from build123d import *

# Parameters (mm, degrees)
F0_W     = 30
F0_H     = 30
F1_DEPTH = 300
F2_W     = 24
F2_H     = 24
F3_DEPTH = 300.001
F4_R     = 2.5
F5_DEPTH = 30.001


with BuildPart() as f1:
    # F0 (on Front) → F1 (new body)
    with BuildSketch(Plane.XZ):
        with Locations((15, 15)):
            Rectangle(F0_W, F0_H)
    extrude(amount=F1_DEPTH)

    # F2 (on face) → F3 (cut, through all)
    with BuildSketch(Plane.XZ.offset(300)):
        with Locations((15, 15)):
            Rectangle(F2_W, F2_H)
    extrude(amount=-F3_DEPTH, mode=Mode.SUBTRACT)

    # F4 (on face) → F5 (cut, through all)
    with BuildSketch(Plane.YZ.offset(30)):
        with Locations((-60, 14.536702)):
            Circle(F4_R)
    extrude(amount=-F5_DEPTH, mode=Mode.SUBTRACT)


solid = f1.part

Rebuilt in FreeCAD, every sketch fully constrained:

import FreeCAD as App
import Part
import Sketcher

doc = App.newDocument("Part")
body = doc.addObject("PartDesign::Body", "Body")

sketch1 = body.newObject("Sketcher::SketchObject", "Sketch")
sketch1.AttachmentSupport = (doc.getObject("XZ_Plane"), [""])
sketch1.MapMode = "FlatFace"
sketch1.addGeometry(Part.LineSegment(App.Vector(0, 30, 0), App.Vector(0, 0, 0)), False)
sketch1.addGeometry(Part.LineSegment(App.Vector(0, 0, 0), App.Vector(30, 0, 0)), False)
sketch1.addGeometry(Part.LineSegment(App.Vector(30, 0, 0), App.Vector(30, 30, 0)), False)
sketch1.addGeometry(Part.LineSegment(App.Vector(30, 30, 0), App.Vector(0, 30, 0)), False)
sketch1.addConstraint(Sketcher.Constraint("Coincident", 0, 2, 1, 1))
sketch1.addConstraint(Sketcher.Constraint("Coincident", 1, 2, 2, 1))
sketch1.addConstraint(Sketcher.Constraint("Coincident", 2, 2, 3, 1))
sketch1.addConstraint(Sketcher.Constraint("Coincident", 3, 2, 0, 1))
sketch1.addConstraint(Sketcher.Constraint("Vertical", 0))
sketch1.addConstraint(Sketcher.Constraint("Horizontal", 1))
sketch1.addConstraint(Sketcher.Constraint("Vertical", 2))
sketch1.addConstraint(Sketcher.Constraint("Horizontal", 3))
sketch1.addConstraint(Sketcher.Constraint("Coincident", 0, 2, -1, 1))
sketch1.addConstraint(Sketcher.Constraint("Equal", 3, 0))
sketch1.addConstraint(Sketcher.Constraint("DistanceX", 1, 1, 1, 2, 30.0))
pad1 = body.newObject("PartDesign::Pad", "Pad")
pad1.Profile = sketch1
pad1.Length = 300

sketch2 = body.newObject("Sketcher::SketchObject", "Sketch001")
sketch2.AttachmentSupport = (doc.getObject("XZ_Plane"), [""])
sketch2.MapMode = "FlatFace"
sketch2.AttachmentOffset = App.Placement(App.Vector(0, 0, 300), App.Rotation())
sketch2.addGeometry(Part.LineSegment(App.Vector(3, 27, 0), App.Vector(3, 3, 0)), False)
sketch2.addGeometry(Part.LineSegment(App.Vector(3, 3, 0), App.Vector(27, 3, 0)), False)
sketch2.addGeometry(Part.LineSegment(App.Vector(27, 3, 0), App.Vector(27, 27, 0)), False)
sketch2.addGeometry(Part.LineSegment(App.Vector(27, 27, 0), App.Vector(3, 27, 0)), False)
sketch2.addConstraint(Sketcher.Constraint("Coincident", 0, 2, 1, 1))
sketch2.addConstraint(Sketcher.Constraint("Coincident", 1, 2, 2, 1))
sketch2.addConstraint(Sketcher.Constraint("Coincident", 2, 2, 3, 1))
sketch2.addConstraint(Sketcher.Constraint("Coincident", 3, 2, 0, 1))
sketch2.addConstraint(Sketcher.Constraint("Vertical", 0))
sketch2.addConstraint(Sketcher.Constraint("Horizontal", 1))
sketch2.addConstraint(Sketcher.Constraint("Vertical", 2))
sketch2.addConstraint(Sketcher.Constraint("Horizontal", 3))
sketch2.addConstraint(Sketcher.Constraint("Equal", 3, 0))
sketch2.addConstraint(Sketcher.Constraint("DistanceX", 1, 1, 1, 2, 24.0))
sketch2.addConstraint(Sketcher.Constraint("DistanceX", -1, 1, 0, 2, 3.0))
sketch2.addConstraint(Sketcher.Constraint("DistanceY", -1, 1, 0, 2, 3.0))
pocket1 = body.newObject("PartDesign::Pocket", "Pocket")
pocket1.Profile = sketch2
pocket1.Type = "ThroughAll"

sketch3 = body.newObject("Sketcher::SketchObject", "Sketch002")
sketch3.AttachmentSupport = (doc.getObject("YZ_Plane"), [""])
sketch3.MapMode = "FlatFace"
sketch3.AttachmentOffset = App.Placement(App.Vector(0, 0, 30), App.Rotation())
sketch3.addGeometry(Part.Circle(App.Vector(-60, 14.5, 0), App.Vector(0, 0, 1), 2.5), False)
sketch3.addConstraint(Sketcher.Constraint("Diameter", 0, 5.0))
sketch3.addConstraint(Sketcher.Constraint("DistanceX", 0, 3, -1, 1, 60.0))
sketch3.addConstraint(Sketcher.Constraint("DistanceY", -1, 1, 0, 3, 14.536702))
pocket2 = body.newObject("PartDesign::Pocket", "Pocket001")
pocket2.Profile = sketch3
pocket2.Type = "ThroughAll"

doc.recompute()
